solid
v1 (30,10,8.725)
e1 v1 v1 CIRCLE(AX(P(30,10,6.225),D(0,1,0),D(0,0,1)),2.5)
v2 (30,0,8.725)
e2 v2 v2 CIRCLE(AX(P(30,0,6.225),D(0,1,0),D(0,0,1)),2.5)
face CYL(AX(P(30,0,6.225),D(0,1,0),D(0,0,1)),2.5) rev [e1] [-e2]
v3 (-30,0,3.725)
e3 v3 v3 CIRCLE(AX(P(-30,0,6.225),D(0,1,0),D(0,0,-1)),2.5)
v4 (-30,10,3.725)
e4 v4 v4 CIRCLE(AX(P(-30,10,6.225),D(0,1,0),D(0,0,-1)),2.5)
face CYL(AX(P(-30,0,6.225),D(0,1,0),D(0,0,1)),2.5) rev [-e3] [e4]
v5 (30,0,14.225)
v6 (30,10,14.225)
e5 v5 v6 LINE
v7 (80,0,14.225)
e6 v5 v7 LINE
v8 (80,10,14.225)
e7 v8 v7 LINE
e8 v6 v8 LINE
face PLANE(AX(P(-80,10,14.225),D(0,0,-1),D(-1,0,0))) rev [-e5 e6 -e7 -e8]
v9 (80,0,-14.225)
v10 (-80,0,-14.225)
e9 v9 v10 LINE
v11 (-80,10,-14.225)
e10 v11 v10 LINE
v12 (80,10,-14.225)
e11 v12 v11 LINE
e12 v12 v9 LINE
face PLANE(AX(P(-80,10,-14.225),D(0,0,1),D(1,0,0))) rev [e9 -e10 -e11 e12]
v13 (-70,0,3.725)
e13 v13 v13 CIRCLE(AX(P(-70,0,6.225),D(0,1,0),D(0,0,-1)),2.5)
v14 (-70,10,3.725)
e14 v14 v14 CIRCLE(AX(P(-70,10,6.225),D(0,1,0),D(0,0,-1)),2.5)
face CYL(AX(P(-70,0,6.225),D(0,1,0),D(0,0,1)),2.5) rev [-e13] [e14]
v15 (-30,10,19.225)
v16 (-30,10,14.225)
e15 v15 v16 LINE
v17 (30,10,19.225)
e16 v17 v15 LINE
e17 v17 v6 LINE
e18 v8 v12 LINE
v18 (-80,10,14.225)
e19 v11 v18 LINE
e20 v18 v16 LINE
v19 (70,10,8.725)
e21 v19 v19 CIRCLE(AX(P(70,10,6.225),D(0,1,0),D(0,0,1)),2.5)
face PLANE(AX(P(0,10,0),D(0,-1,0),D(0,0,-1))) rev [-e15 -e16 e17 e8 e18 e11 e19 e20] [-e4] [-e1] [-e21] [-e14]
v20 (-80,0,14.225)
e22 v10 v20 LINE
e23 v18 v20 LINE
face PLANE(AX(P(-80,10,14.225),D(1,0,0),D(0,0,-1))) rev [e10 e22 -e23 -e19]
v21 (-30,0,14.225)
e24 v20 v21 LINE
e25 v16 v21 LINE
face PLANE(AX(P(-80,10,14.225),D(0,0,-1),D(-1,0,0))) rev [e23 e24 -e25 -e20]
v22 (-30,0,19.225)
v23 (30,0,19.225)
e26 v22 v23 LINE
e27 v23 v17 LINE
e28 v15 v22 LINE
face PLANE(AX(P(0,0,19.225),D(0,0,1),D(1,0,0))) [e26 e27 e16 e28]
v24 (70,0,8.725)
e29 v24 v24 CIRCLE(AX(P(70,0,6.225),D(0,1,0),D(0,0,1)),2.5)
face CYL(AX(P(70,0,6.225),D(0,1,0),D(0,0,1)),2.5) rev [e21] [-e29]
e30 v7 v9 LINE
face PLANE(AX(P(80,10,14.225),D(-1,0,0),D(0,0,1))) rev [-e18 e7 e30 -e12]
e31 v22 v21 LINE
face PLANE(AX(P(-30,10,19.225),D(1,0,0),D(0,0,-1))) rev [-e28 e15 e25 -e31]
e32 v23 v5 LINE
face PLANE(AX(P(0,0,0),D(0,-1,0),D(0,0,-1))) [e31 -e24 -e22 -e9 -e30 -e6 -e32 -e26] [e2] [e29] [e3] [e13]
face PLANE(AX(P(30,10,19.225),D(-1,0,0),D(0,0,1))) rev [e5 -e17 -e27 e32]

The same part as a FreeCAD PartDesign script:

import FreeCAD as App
import Part
import Sketcher

V = App.Vector
Q = App.Units.Quantity


def add_polygon(sketch, points):
    """Adds a closed chain of lines whose ends are joined by coincident constraints."""
    first, n = sketch.GeometryCount, len(points)
    for a, b in zip(points, points[1:] + points[:1]):
        sketch.addGeometry(Part.LineSegment(App.Vector(*a, 0), App.Vector(*b, 0)), False)
    for i in range(n):
        sketch.addConstraint(Sketcher.Constraint("Coincident", first + i, 2, first + (i + 1) % n, 1))

doc = App.newDocument("Part")
body = doc.addObject("PartDesign::Body", "Body")

# Sketch on XZ plane
sketch1 = body.newObject("Sketcher::SketchObject", "Sketch")
sketch1.AttachmentSupport = (doc.getObject("XZ_Plane"), [""])
sketch1.MapMode = "FlatFace"
add_polygon(sketch1, [(-80, -14.225), (-80, 14.225), (80, 14.225), (80, -14.225)])  # lines 0-3
sketch1.addConstraint(Sketcher.Constraint("Vertical", 0))
sketch1.addConstraint(Sketcher.Constraint("Horizontal", 1))
sketch1.addConstraint(Sketcher.Constraint("Vertical", 2))
sketch1.addConstraint(Sketcher.Constraint("Horizontal", 3))
sketch1.addConstraint(Sketcher.Constraint("Symmetric", 0, 2, 2, 2, -1, 1))
sketch1.addConstraint(Sketcher.Constraint("DistanceX", 1, 1, 1, 2, Q("160 mm")))
sketch1.addConstraint(Sketcher.Constraint("DistanceY", 0, 1, 0, 2, Q("28.45 mm")))
pad1 = body.newObject("PartDesign::Pad", "Pad")
pad1.Profile = sketch1
pad1.Length = 10
pad1.Reversed = True

# Sketch on XY plane
sketch2 = body.newObject("Sketcher::SketchObject", "Sketch001")
sketch2.AttachmentSupport = (doc.getObject("XY_Plane"), [""])
sketch2.MapMode = "FlatFace"
sketch2.AttachmentOffset = App.Placement(V(0, 0, 14.225), App.Rotation())
add_polygon(sketch2, [(-30, 10), (-30, 0), (30, 0), (30, 10)])  # lines 0-3
sketch2.addConstraint(Sketcher.Constraint("Vertical", 0))
sketch2.addConstraint(Sketcher.Constraint("Horizontal", 1))
sketch2.addConstraint(Sketcher.Constraint("Vertical", 2))
sketch2.addConstraint(Sketcher.Constraint("Horizontal", 3))
sketch2.addConstraint(Sketcher.Constraint("Symmetric", 0, 2, 1, 2, -1, 1))
sketch2.addConstraint(Sketcher.Constraint("DistanceX", 1, 1, 1, 2, Q("60 mm")))
sketch2.addConstraint(Sketcher.Constraint("DistanceY", 0, 2, 0, 1, Q("10 mm")))
pad2 = body.newObject("PartDesign::Pad", "Pad001")
pad2.Profile = sketch2
pad2.Length = 5

# Sketch on XZ plane
sketch3 = body.newObject("Sketcher::SketchObject", "Sketch002")
sketch3.AttachmentSupport = (doc.getObject("XZ_Plane"), [""])
sketch3.MapMode = "FlatFace"
sketch3.AttachmentOffset = App.Placement(V(0, 0, -10), App.Rotation())
sketch3.addGeometry(Part.Circle(V(70, 6.225, 0), V(0, 0, 1), 2.5), False)
sketch3.addGeometry(Part.Circle(V(30, 6.225, 0), V(0, 0, 1), 2.5), False)
sketch3.addGeometry(Part.Circle(V(-30, 6.225, 0), V(0, 0, 1), 2.5), False)
sketch3.addGeometry(Part.Circle(V(-70, 6.225, 0), V(0, 0, 1), 2.5), False)
sketch3.addConstraint(Sketcher.Constraint("Equal", 0, 1))
sketch3.addConstraint(Sketcher.Constraint("Equal", 1, 2))
sketch3.addConstraint(Sketcher.Constraint("Equal", 2, 3))
sketch3.addConstraint(Sketcher.Constraint("Symmetric", 1, 3, 2, 3, -2))
sketch3.addConstraint(Sketcher.Constraint("Symmetric", 0, 3, 3, 3, -2))
sketch3.addConstraint(Sketcher.Constraint("Horizontal", 0, 3, 1, 3))
sketch3.addConstraint(Sketcher.Constraint("Diameter", 0, Q("5 mm")))
sketch3.addConstraint(Sketcher.Constraint("DistanceX", -1, 1, 0, 3, Q("70 mm")))
sketch3.addConstraint(Sketcher.Constraint("DistanceX", -1, 1, 1, 3, Q("30 mm")))
sketch3.addConstraint(Sketcher.Constraint("DistanceY", -1, 1, 0, 3, Q("6.225 mm")))
pocket1 = body.newObject("PartDesign::Pocket", "Pocket")
pocket1.Profile = sketch3
pocket1.Type = "ThroughAll"
pocket1.Reversed = True

doc.recompute()
